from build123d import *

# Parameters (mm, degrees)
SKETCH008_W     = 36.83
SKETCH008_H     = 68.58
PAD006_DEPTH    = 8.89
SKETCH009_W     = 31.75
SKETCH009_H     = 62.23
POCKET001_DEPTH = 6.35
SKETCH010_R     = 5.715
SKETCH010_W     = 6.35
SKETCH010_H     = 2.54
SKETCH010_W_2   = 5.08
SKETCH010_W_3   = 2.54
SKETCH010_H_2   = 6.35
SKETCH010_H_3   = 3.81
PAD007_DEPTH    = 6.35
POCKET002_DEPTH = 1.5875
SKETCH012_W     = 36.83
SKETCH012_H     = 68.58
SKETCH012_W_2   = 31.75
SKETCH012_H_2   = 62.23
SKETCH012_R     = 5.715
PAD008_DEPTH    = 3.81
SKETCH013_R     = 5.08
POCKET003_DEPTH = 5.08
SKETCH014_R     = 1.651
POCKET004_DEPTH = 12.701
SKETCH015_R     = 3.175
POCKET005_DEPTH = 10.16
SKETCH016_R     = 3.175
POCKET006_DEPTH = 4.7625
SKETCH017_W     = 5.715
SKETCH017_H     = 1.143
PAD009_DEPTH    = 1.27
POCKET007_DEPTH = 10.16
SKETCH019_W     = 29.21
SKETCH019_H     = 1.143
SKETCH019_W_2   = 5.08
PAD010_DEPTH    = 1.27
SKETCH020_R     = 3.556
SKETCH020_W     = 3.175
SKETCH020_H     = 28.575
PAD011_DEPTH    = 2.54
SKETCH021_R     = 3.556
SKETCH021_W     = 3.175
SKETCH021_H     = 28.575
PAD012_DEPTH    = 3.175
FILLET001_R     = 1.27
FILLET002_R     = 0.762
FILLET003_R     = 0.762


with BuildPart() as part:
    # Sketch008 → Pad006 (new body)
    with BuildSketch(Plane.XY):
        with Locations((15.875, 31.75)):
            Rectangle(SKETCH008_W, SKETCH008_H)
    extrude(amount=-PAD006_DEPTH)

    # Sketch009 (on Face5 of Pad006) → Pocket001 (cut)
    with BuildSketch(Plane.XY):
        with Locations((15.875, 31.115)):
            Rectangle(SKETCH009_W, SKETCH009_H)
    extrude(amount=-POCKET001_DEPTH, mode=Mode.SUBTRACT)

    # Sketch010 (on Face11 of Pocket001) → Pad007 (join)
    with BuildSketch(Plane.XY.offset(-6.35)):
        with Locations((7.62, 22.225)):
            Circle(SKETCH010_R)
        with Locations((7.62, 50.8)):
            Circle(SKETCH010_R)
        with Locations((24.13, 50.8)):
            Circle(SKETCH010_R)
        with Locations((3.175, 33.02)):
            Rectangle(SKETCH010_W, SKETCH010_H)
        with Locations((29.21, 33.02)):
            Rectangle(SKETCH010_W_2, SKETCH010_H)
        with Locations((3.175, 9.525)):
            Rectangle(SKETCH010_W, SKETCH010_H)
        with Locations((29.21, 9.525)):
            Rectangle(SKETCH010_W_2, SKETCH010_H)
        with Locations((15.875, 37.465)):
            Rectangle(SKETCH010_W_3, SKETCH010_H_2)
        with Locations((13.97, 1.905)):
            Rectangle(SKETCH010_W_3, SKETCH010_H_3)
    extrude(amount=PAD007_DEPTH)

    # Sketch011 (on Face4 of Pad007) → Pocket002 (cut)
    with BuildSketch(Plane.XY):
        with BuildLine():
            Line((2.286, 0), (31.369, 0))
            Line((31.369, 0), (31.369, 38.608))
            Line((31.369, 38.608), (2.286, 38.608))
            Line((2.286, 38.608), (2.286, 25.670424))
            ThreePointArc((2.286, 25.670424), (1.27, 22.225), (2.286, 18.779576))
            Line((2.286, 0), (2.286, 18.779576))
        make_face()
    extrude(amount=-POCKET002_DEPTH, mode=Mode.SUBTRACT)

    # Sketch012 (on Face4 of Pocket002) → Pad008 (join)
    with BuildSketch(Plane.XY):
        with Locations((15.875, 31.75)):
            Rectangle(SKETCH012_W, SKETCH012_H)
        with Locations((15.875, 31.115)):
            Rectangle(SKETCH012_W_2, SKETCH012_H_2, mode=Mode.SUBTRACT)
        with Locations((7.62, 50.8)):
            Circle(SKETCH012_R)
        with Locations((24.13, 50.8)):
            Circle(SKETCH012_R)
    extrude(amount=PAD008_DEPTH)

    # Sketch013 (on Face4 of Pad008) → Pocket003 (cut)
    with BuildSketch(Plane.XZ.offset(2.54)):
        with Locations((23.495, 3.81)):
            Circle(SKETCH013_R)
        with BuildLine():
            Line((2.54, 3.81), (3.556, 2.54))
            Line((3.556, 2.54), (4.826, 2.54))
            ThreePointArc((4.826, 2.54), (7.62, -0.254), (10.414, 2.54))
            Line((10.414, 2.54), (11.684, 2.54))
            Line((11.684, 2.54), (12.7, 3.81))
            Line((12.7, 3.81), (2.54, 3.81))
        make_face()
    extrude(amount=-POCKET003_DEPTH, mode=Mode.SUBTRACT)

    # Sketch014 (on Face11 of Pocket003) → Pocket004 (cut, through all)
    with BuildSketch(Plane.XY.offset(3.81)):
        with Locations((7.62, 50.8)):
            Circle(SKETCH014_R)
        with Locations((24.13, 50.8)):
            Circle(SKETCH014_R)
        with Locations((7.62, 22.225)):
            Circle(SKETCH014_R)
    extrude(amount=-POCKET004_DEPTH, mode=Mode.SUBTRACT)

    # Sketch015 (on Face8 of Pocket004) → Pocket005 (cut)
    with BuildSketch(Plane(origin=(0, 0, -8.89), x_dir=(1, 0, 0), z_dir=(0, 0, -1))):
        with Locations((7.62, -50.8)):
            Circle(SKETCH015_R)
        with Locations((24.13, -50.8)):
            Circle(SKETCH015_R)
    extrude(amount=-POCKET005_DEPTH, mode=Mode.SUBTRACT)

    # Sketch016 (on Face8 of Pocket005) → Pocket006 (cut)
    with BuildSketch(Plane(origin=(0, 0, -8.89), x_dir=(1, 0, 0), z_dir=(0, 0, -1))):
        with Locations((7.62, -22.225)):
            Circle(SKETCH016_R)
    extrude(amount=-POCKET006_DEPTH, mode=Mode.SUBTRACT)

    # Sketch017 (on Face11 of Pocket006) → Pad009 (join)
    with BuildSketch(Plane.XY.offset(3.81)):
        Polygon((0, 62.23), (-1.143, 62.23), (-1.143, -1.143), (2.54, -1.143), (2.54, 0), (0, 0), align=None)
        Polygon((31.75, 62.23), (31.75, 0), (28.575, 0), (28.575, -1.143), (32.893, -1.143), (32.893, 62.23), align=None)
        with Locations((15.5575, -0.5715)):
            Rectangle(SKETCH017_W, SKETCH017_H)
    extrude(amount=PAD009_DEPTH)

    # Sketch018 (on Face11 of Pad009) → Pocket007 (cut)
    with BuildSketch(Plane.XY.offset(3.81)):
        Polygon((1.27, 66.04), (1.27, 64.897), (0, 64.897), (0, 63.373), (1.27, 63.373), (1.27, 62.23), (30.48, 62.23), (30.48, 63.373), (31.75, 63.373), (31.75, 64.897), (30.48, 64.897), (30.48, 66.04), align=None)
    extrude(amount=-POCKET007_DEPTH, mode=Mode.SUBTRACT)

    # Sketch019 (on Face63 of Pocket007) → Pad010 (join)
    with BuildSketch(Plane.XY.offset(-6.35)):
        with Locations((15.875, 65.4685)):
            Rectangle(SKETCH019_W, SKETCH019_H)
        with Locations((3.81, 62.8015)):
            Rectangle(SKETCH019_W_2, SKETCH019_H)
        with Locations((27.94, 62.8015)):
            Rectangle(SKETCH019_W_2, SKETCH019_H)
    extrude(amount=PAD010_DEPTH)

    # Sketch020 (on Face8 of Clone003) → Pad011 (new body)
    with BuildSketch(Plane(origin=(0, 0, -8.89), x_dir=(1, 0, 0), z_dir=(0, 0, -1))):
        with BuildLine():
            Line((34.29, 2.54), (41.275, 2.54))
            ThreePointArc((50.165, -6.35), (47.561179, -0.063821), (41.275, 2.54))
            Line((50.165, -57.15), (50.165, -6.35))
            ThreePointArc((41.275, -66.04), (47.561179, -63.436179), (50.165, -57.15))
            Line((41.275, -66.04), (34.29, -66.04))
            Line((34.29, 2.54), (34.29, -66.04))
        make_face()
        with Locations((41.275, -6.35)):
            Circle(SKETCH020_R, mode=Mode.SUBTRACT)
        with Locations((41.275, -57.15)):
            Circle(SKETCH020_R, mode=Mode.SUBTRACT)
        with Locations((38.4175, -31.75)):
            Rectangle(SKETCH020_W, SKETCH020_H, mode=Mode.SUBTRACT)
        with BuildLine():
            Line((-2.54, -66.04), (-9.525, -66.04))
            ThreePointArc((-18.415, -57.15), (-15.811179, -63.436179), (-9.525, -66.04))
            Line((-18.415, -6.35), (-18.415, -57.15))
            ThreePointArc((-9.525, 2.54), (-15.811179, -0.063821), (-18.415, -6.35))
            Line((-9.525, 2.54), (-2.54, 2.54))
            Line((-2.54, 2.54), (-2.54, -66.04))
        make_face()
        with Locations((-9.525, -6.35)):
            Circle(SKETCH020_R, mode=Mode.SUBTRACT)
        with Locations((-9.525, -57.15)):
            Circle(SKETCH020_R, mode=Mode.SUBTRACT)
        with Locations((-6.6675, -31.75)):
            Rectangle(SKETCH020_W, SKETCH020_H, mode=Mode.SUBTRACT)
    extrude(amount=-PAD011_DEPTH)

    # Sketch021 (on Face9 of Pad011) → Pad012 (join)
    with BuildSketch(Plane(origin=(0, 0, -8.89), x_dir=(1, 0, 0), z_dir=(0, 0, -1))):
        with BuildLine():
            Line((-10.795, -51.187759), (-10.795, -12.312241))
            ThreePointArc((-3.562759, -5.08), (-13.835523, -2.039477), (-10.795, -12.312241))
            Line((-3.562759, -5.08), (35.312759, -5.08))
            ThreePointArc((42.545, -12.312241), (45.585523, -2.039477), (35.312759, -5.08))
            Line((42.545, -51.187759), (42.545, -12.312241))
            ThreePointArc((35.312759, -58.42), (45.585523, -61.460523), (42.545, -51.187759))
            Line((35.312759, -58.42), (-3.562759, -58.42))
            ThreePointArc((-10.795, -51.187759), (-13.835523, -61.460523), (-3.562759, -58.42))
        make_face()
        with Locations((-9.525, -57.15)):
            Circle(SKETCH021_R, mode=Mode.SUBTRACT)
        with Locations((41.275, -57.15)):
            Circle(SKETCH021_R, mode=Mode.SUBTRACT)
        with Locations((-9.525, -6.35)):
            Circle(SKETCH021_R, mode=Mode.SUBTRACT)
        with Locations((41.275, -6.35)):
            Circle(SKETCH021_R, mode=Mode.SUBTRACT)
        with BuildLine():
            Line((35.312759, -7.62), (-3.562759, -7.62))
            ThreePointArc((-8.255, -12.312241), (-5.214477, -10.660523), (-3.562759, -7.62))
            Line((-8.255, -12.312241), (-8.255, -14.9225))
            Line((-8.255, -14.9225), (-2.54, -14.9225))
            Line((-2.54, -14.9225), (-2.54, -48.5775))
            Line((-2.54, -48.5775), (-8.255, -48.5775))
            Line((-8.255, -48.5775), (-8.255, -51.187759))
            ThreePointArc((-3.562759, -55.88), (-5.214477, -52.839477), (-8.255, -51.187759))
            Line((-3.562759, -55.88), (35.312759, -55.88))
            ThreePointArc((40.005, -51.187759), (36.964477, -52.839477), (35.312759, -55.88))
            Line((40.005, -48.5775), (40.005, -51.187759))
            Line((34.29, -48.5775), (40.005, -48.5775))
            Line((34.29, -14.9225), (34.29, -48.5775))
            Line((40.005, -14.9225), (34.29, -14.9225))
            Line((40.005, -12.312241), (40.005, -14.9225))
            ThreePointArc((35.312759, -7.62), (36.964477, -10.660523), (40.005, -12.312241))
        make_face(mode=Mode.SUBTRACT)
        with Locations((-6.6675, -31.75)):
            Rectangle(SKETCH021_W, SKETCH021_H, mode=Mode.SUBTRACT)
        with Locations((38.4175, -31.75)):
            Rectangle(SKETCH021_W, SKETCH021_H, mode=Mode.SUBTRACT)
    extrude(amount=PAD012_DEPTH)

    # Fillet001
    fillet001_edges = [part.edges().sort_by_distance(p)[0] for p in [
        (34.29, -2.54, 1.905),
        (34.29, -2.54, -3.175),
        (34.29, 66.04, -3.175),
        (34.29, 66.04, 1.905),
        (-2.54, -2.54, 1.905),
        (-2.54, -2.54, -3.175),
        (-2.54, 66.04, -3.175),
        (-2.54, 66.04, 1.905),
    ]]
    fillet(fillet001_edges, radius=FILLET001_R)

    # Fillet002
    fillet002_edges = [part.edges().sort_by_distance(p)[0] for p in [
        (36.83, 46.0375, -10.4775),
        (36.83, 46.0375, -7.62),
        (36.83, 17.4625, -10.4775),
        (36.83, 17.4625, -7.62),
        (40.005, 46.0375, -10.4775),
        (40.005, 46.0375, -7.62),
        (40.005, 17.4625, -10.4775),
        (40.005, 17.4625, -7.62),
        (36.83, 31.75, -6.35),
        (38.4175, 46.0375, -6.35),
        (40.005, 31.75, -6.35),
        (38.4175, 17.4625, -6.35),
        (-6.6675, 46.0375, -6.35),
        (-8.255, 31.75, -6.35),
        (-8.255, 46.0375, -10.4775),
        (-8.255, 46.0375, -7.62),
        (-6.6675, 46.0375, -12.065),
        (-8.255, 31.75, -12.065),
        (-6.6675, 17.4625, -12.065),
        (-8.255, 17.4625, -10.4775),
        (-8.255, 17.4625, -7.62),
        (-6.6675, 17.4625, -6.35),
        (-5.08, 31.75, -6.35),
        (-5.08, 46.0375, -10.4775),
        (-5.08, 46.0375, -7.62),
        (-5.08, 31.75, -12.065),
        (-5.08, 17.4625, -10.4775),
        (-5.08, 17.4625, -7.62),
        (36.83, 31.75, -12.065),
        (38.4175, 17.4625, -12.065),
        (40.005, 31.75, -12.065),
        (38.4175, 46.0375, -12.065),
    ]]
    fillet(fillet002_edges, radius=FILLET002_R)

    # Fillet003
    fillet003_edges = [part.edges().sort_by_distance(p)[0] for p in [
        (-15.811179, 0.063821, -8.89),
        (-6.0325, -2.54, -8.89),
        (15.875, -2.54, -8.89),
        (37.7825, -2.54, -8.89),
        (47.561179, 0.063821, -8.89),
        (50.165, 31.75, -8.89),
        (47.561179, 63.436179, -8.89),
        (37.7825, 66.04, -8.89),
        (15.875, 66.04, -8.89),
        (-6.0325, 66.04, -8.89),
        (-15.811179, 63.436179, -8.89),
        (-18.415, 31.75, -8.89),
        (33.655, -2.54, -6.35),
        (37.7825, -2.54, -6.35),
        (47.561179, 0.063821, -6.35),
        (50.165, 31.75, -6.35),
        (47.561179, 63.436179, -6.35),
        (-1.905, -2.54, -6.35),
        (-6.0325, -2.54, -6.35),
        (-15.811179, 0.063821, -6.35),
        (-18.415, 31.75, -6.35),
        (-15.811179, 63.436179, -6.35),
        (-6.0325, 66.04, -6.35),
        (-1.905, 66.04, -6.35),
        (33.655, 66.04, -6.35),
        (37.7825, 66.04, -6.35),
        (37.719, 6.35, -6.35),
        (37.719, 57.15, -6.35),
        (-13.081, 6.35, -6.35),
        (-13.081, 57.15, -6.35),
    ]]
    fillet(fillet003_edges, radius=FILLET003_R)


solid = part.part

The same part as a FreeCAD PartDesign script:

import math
import FreeCAD as App
import Part
import Sketcher
from FreeCAD import Vector
Q = App.Units.Quantity


def edges_at(feature, points):
    """Names of the edges that pass closest to the given points."""
    edges = feature.Shape.Edges
    near = lambda p: min(range(len(edges)), key=lambda i: edges[i].distToShape(Part.Vertex(*p))[0])
    return sorted({f"Edge{near(p) + 1}" for p in points})


def add_polygon(sketch, points):
    """Adds a closed chain of lines whose ends are joined by coincident constraints."""
    first, n = sketch.GeometryCount, len(points)
    for a, b in zip(points, points[1:] + points[:1]):
        sketch.addGeometry(Part.LineSegment(App.Vector(*a, 0), App.Vector(*b, 0)), False)
    for i in range(n):
        sketch.addConstraint(Sketcher.Constraint("Coincident", first + i, 2, first + (i + 1) % n, 1))

doc = App.newDocument("Part")
params = doc.addObject("Spreadsheet::Sheet", "Params")
for row, (alias, value) in enumerate([
    ("sketch1_height", "2.7 in"),
    ("sketch1_width", "1.45 in"),
    ("pad1_length", "0.35 in"),
    ("sketch2_width", "1.25 in"),
    ("sketch2_height", "2.45 in"),
    ("pocket1_length", "0.25 in"),
    ("sketch3_diameter", "0.45 in"),
    ("sketch3_width", "0.2 in"),
    ("sketch3_width2", "0.1 in"),
    ("sketch3_width3", "0.25 in"),
    ("sketch3_height", "0.15 in"),
    ("pad2_length", "0.25 in"),
    ("sketch4_radius", "0.25 in"),
    ("sketch4_height", "1.52 in"),
    ("sketch4_width", "1.145 in"),
    ("pocket2_length", "0.0625 in"),
    ("sketch5_diameter", "0.45 in"),
    ("sketch5_height", "2.7 in"),
    ("sketch5_width", "1.45 in"),
    ("sketch5_width2", "1.25 in"),
    ("sketch5_height2", "2.45 in"),
    ("pad3_length", "0.15 in"),
    ("sketch6_diameter", "0.4 in"),
    ("sketch6_radius", "0.11 in"),
    ("sketch6_width", "0.4 in"),
    ("sketch6_width2", "0.05 in"),
    ("pocket3_length", "0.2 in"),
    ("sketch7_diameter", "0.13 in"),
    ("sketch8_diameter", "0.25 in"),
    ("pocket5_length", "0.4 in"),
    ("sketch9_diameter", "0.25 in"),
    ("pocket6_length", "0.1875 in"),
    ("sketch10_width", "0.1 in"),
    ("sketch10_width2", "0.17 in"),
    ("sketch10_height", "2.45 in"),
    ("sketch10_width3", "0.045 in"),
    ("sketch10_width4", "0.225 in"),
    ("pad4_length", "0.05 in"),
    ("sketch11_width", "0.05 in"),
    ("sketch11_width2", "1.15 in"),
    ("sketch11_height", "0.06 in"),
    ("sketch11_height2", "0.045 in"),
    ("pocket7_length", "0.4 in"),
    ("sketch12_width", "0.2 in"),
    ("sketch12_width2", "1.15 in"),
    ("sketch12_height", "0.045 in"),
    ("pad5_length", "0.05 in"),
    ("sketch13_diameter", "0.28 in"),
    ("sketch13_height", "2 in"),
    ("sketch13_radius", "0.35 in"),
    ("sketch13_width", "0.275 in"),
    ("sketch13_height2", "1.125 in"),
    ("pad6_length", "0.1 in"),
    ("sketch14_diameter", "0.28 in"),
    ("sketch14_radius", "0.24 in"),
    ("sketch14_width", "0.225 in"),
    ("sketch14_height", "1.325 in"),
    ("pad7_length", "0.125 in"),
    ("fillet_radius", "0.05 in"),
    ("fillet2_radius", "0.03 in"),
    ("fillet3_radius", "0.03 in"),
], start=1):
    params.set(f"A{row}", alias)
    params.set(f"B{row}", "=" + value)
    params.setAlias(f"B{row}", alias)

body = doc.addObject("PartDesign::Body", "Body")

# Sketch on XY plane
sketch1 = body.newObject("Sketcher::SketchObject", "Sketch")
sketch1.AttachmentSupport = (doc.getObject("XY_Plane"), [""])
sketch1.MapMode = "FlatFace"
add_polygon(sketch1, [(-2.54, 66.04), (-2.54, -2.54), (34.29, -2.54), (34.29, 66.04)])  # lines 0-3
sketch1.addConstraint([
    Sketcher.Constraint("Vertical", 0),
    Sketcher.Constraint("Horizontal", 1),
    Sketcher.Constraint("Vertical", 2),
    Sketcher.Constraint("Horizontal", 3),
    Sketcher.Constraint("DistanceY", 0, 2, 0, 1, Q("2.7 in")),
    Sketcher.Constraint("DistanceX", 1, 1, 1, 2, Q("1.45 in")),
    Sketcher.Constraint("DistanceX", 0, 2, -1, 1, Q("0.1 in")),
    Sketcher.Constraint("DistanceY", 0, 2, -1, 1, Q("0.1 in")),
])
sketch1.setExpression("Constraints[8]", "Params.sketch1_height")
sketch1.setExpression("Constraints[9]", "Params.sketch1_width")
pad1 = body.newObject("PartDesign::Pad", "Pad")
pad1.Profile = sketch1
pad1.setExpression("Length", "Params.pad1_length")
pad1.Reversed = True

# Sketch on XY plane
sketch2 = body.newObject("Sketcher::SketchObject", "Sketch001")
sketch2.AttachmentSupport = (doc.getObject("XY_Plane"), [""])
sketch2.MapMode = "FlatFace"
add_polygon(sketch2, [(0, 62.23), (0, 0), (31.75, 0), (31.75, 62.23)])  # lines 0-3
sketch2.addConstraint([
    Sketcher.Constraint("Vertical", 0),
    Sketcher.Constraint("Horizontal", 1),
    Sketcher.Constraint("Vertical", 2),
    Sketcher.Constraint("Horizontal", 3),
    Sketcher.Constraint("Coincident", 0, 2, -1, 1),
    Sketcher.Constraint("DistanceX", 1, 1, 1, 2, Q("1.25 in")),
    Sketcher.Constraint("DistanceY", 0, 2, 0, 1, Q("2.45 in")),
])
sketch2.setExpression("Constraints[9]", "Params.sketch2_width")
sketch2.setExpression("Constraints[10]", "Params.sketch2_height")
pocket1 = body.newObject("PartDesign::Pocket", "Pocket")
pocket1.Profile = sketch2
pocket1.setExpression("Length", "Params.pocket1_length")

# Sketch on XY plane
sketch3 = body.newObject("Sketcher::SketchObject", "Sketch002")
sketch3.AttachmentSupport = (doc.getObject("XY_Plane"), [""])
sketch3.MapMode = "FlatFace"
sketch3.AttachmentOffset = App.Placement(Vector(0, 0, -0.25 * 25.4), App.Rotation())
sketch3.addGeometry(Part.Circle(Vector(7.62, 22.225, 0), Vector(0, 0, 1), 5.715), False)  # 0
sketch3.addGeometry(Part.Circle(Vector(7.62, 50.8, 0), Vector(0, 0, 1), 5.715), False)  # 1
sketch3.addGeometry(Part.Circle(Vector(24.13, 50.8, 0), Vector(0, 0, 1), 5.715), False)  # 2
add_polygon(sketch3, [(0, 34.29), (0, 31.75), (6.35, 31.75), (6.35, 34.29)])  # lines 3-6
add_polygon(sketch3, [(26.67, 34.29), (26.67, 31.75), (31.75, 31.75), (31.75, 34.29)])  # lines 7-10
add_polygon(sketch3, [(0, 10.795), (0, 8.255), (6.35, 8.255), (6.35, 10.795)])  # lines 11-14
add_polygon(sketch3, [(26.67, 10.795), (26.67, 8.255), (31.75, 8.255), (31.75, 10.795)])  # lines 15-18
add_polygon(sketch3, [(14.605, 40.64), (14.605, 34.29), (17.145, 34.29), (17.145, 40.64)])  # lines 19-22
add_polygon(sketch3, [(12.7, 3.81), (12.7, 0), (15.24, 0), (15.24, 3.81)])  # lines 23-26
sketch3.addConstraint([
    Sketcher.Constraint("Vertical", 3),
    Sketcher.Constraint("Horizontal", 4),
    Sketcher.Constraint("Vertical", 5),
    Sketcher.Constraint("Horizontal", 6),
    Sketcher.Constraint("Vertical", 7),
    Sketcher.Constraint("Horizontal", 8),
    Sketcher.Constraint("Vertical", 9),
    Sketcher.Constraint("Horizontal", 10),
    Sketcher.Constraint("Vertical", 11),
    Sketcher.Constraint("Horizontal", 12),
    Sketcher.Constraint("Vertical", 13),
    Sketcher.Constraint("Horizontal", 14),
    Sketcher.Constraint("Vertical", 15),
    Sketcher.Constraint("Horizontal", 16),
    Sketcher.Constraint("Vertical", 17),
    Sketcher.Constraint("Horizontal", 18),
    Sketcher.Constraint("Vertical", 19),
    Sketcher.Constraint("Horizontal", 20),
    Sketcher.Constraint("Vertical", 21),
    Sketcher.Constraint("Horizontal", 22),
    Sketcher.Constraint("Vertical", 23),
    Sketcher.Constraint("Horizontal", 24),
    Sketcher.Constraint("Vertical", 25),
    Sketcher.Constraint("Horizontal", 26),
    Sketcher.Constraint("Equal", 0, 1),
    Sketcher.Constraint("Equal", 1, 2),
    Sketcher.Constraint("PointOnObject", 3, 2, -2),
    Sketcher.Constraint("PointOnObject", 11, 2, -2),
    Sketcher.Constraint("PointOnObject", 23, 2, -1),
    Sketcher.Constraint("Horizontal", 1, 3, 2, 3),
    Sketcher.Constraint("Horizontal", 4, 2, 7, 2),
    Sketcher.Constraint("Horizontal", 6, 2, 9, 2),
    Sketcher.Constraint("Horizontal", 12, 2, 15, 2),
    Sketcher.Constraint("Horizontal", 14, 2, 17, 2),
    Sketcher.Constraint("Horizontal", 10, 2, 19, 2),
    Sketcher.Constraint("Vertical", 0, 3, 1, 3),
    Sketcher.Constraint("Vertical", 5, 2, 12, 2),
    Sketcher.Constraint("Vertical", 10, 2, 15, 2),
    Sketcher.Constraint("Vertical", 9, 2, 16, 2),
    Sketcher.Constraint("Equal", 22, 24),
    Sketcher.Constraint("Equal", 26, 3),
    Sketcher.Constraint("Equal", 9, 11),
    Sketcher.Constraint("Equal", 14, 19),
    Sketcher.Constraint("Diameter", 0, Q("0.45 in")),
    Sketcher.Constraint("DistanceX", 8, 1, 8, 2, Q("0.2 in")),
    Sketcher.Constraint("DistanceX", 20, 1, 20, 2, Q("0.1 in")),
    Sketcher.Constraint("DistanceY", -1, 1, 1, 3, Q("2 in")),
    Sketcher.Constraint("DistanceX", 4, 2, 8, 2, Q("1 in")),
    Sketcher.Constraint("DistanceX", 4, 1, 4, 2, Q("0.25 in")),
    Sketcher.Constraint("DistanceY", 23, 2, 23, 1, Q("0.15 in")),
    Sketcher.Constraint("DistanceX", -1, 1, 0, 3, Q("0.3 in")),
    Sketcher.Constraint("DistanceY", -1, 1, 21, 2, Q("1.6 in")),
    Sketcher.Constraint("DistanceX", -1, 1, 23, 2, Q("0.5 in")),
    Sketcher.Constraint("DistanceX", 4, 2, 2, 3, Q("0.7 in")),
    Sketcher.Constraint("DistanceY", 11, 2, 0, 3, Q("0.55 in")),
    Sketcher.Constraint("DistanceY", -1, 1, 0, 3, Q("0.875 in")),
    Sketcher.Constraint("DistanceX", -1, 1, 19, 2, Q("0.575 in")),
])
sketch3.setExpression("Constraints[67]", "Params.sketch3_diameter")
sketch3.setExpression("Constraints[68]", "Params.sketch3_width")
sketch3.setExpression("Constraints[69]", "Params.sketch3_width2")
sketch3.setExpression("Constraints[72]", "Params.sketch3_width3")
sketch3.setExpression("Constraints[73]", "Params.sketch3_height")
pad2 = body.newObject("PartDesign::Pad", "Pad001")
pad2.Profile = sketch3
pad2.setExpression("Length", "Params.pad2_length")

# Sketch on XY plane
sketch4 = body.newObject("Sketcher::SketchObject", "Sketch003")
sketch4.AttachmentSupport = (doc.getObject("XY_Plane"), [""])
sketch4.MapMode = "FlatFace"
sketch4.addGeometry([
    Part.LineSegment(Vector(2.286, 0, 0), Vector(31.369, 0, 0)),  # 0
    Part.LineSegment(Vector(31.369, 0, 0), Vector(31.369, 38.608, 0)),  # 1
    Part.LineSegment(Vector(31.369, 38.608, 0), Vector(2.286, 38.608, 0)),  # 2
    Part.LineSegment(Vector(2.286, 38.608, 0), Vector(2.286, 25.670424, 0)),  # 3
    Part.ArcOfCircle(Part.Circle(Vector(7.620001, 22.225, 0), Vector(0, 0, 1), 6.350001), math.radians(147.140123), math.radians(212.859877)),  # 4
    Part.LineSegment(Vector(2.286, 18.779576, 0), Vector(2.286, 0, 0)),  # 5
], False)
sketch4.addConstraint([
    Sketcher.Constraint("Coincident", 0, 2, 1, 1),
    Sketcher.Constraint("Coincident", 1, 2, 2, 1),
    Sketcher.Constraint("Coincident", 2, 2, 3, 1),
    Sketcher.Constraint("Coincident", 3, 2, 4, 1),
    Sketcher.Constraint("Coincident", 4, 2, 5, 1),
    Sketcher.Constraint("Coincident", 5, 2, 0, 1),
    Sketcher.Constraint("Horizontal", 0),
    Sketcher.Constraint("Vertical", 1),
    Sketcher.Constraint("Horizontal", 2),
    Sketcher.Constraint("Vertical", 3),
    Sketcher.Constraint("Vertical", 5),
    Sketcher.Constraint("PointOnObject", 0, 2, -1),
    Sketcher.Constraint("Vertical", 3, 2, 4, 2),
    Sketcher.Constraint("Radius", 4, Q("0.25 in")),
    Sketcher.Constraint("DistanceY", 1, 1, 1, 2, Q("1.52 in")),
    Sketcher.Constraint("DistanceX", -1, 1, 4, 3, Q("0.3 in")),
    Sketcher.Constraint("DistanceX", 0, 1, 0, 2, Q("1.145 in")),
    Sketcher.Constraint("DistanceX", -1, 1, 2, 2, Q("0.09 in")),
    Sketcher.Constraint("DistanceY", -1, 1, 4, 3, Q("0.875 in")),
])
sketch4.setExpression("Constraints[13]", "Params.sketch4_radius")
sketch4.setExpression("Constraints[14]", "Params.sketch4_height")
sketch4.setExpression("Constraints[16]", "Params.sketch4_width")
pocket2 = body.newObject("PartDesign::Pocket", "Pocket001")
pocket2.Profile = sketch4
pocket2.setExpression("Length", "Params.pocket2_length")

# Sketch on XY plane
sketch5 = body.newObject("Sketcher::SketchObject", "Sketch004")
sketch5.AttachmentSupport = (doc.getObject("XY_Plane"), [""])
sketch5.MapMode = "FlatFace"
add_polygon(sketch5, [(-2.54, 66.04), (-2.54, -2.54), (34.29, -2.54), (34.29, 66.04)])  # lines 0-3
add_polygon(sketch5, [(31.75, 0), (0, 0), (0, 62.23), (31.75, 62.23)])  # lines 4-7
sketch5.addGeometry(Part.Circle(Vector(7.62, 50.8, 0), Vector(0, 0, 1), 5.715), False)  # 8
sketch5.addGeometry(Part.Circle(Vector(24.13, 50.8, 0), Vector(0, 0, 1), 5.715), False)  # 9
sketch5.addConstraint([
    Sketcher.Constraint("Vertical", 0),
    Sketcher.Constraint("Horizontal", 1),
    Sketcher.Constraint("Vertical", 2),
    Sketcher.Constraint("Horizontal", 3),
    Sketcher.Constraint("Horizontal", 4),
    Sketcher.Constraint("Vertical", 5),
    Sketcher.Constraint("Horizontal", 6),
    Sketcher.Constraint("Vertical", 7),
    Sketcher.Constraint("Coincident", 4, 2, -1, 1),
    Sketcher.Constraint("Equal", 8, 9),
    Sketcher.Constraint("Horizontal", 8, 3, 9, 3),
    Sketcher.Constraint("Diameter", 8, Q("0.45 in")),
    Sketcher.Constraint("DistanceY", 0, 2, 0, 1, Q("2.7 in")),
    Sketcher.Constraint("DistanceY", -1, 1, 8, 3, Q("2 in")),
    Sketcher.Constraint("DistanceX", 1, 1, 1, 2, Q("1.45 in")),
    Sketcher.Constraint("DistanceX", 4, 2, 4, 1, Q("1.25 in")),
    Sketcher.Constraint("DistanceY", 5, 1, 5, 2, Q("2.45 in")),
    Sketcher.Constraint("DistanceX", -1, 1, 8, 3, Q("0.3 in")),
    Sketcher.Constraint("DistanceX", 0, 2, -1, 1, Q("0.1 in")),
    Sketcher.Constraint("DistanceY", 0, 2, -1, 1, Q("0.1 in")),
    Sketcher.Constraint("DistanceX", 9, 3, 1, 2, Q("0.4 in")),
])
sketch5.setExpression("Constraints[19]", "Params.sketch5_diameter")
sketch5.setExpression("Constraints[20]", "Params.sketch5_height")
sketch5.setExpression("Constraints[22]", "Params.sketch5_width")
sketch5.setExpression("Constraints[23]", "Params.sketch5_width2")
sketch5.setExpression("Constraints[24]", "Params.sketch5_height2")
pad3 = body.newObject("PartDesign::Pad", "Pad002")
pad3.Profile = sketch5
pad3.setExpression("Length", "Params.pad3_length")

# Sketch on XZ plane
sketch6 = body.newObject("Sketcher::SketchObject", "Sketch005")
sketch6.AttachmentSupport = (doc.getObject("XZ_Plane"), [""])
sketch6.MapMode = "FlatFace"
sketch6.AttachmentOffset = App.Placement(Vector(0, 0, 0.1 * 25.4), App.Rotation())
sketch6.addGeometry([
    Part.Circle(Vector(23.495, 3.81, 0), Vector(0, 0, 1), 5.08),  # 0
    Part.LineSegment(Vector(2.54, 3.81, 0), Vector(3.556, 2.54, 0)),  # 1
    Part.LineSegment(Vector(3.556, 2.54, 0), Vector(4.826, 2.54, 0)),  # 2
    Part.ArcOfCircle(Part.Circle(Vector(7.62, 2.54, 0), Vector(0, 0, 1), 2.794), math.radians(180), math.radians(360)),  # 3
    Part.LineSegment(Vector(10.414, 2.54, 0), Vector(11.684, 2.54, 0)),  # 4
    Part.LineSegment(Vector(11.684, 2.54, 0), Vector(12.7, 3.81, 0)),  # 5
    Part.LineSegment(Vector(12.7, 3.81, 0), Vector(2.54, 3.81, 0)),  # 6
], False)
sketch6.addConstraint([
    Sketcher.Constraint("Coincident", 1, 2, 2, 1),
    Sketcher.Constraint("Coincident", 2, 2, 3, 1),
    Sketcher.Constraint("Coincident", 3, 2, 4, 1),
    Sketcher.Constraint("Coincident", 4, 2, 5, 1),
    Sketcher.Constraint("Coincident", 5, 2, 6, 1),
    Sketcher.Constraint("Coincident", 6, 2, 1, 1),
    Sketcher.Constraint("Horizontal", 2),
    Sketcher.Constraint("Horizontal", 4),
    Sketcher.Constraint("Horizontal", 6),
    Sketcher.Constraint("Horizontal", 3, 3, 1, 2),
    Sketcher.Constraint("Horizontal", 2, 2, 3, 2),
    Sketcher.Constraint("Horizontal", 0, 3, 5, 2),
    Sketcher.Constraint("Equal", 2, 4),
    Sketcher.Constraint("Equal", 1, 5),
    Sketcher.Constraint("Diameter", 0, Q("0.4 in")),
    Sketcher.Constraint("Radius", 3, Q("0.11 in")),
    Sketcher.Constraint("DistanceX", 6, 2, 6, 1, Q("0.4 in")),
    Sketcher.Constraint("DistanceX", 2, 1, 2, 2, Q("0.05 in")),
    Sketcher.Constraint("DistanceX", -1, 1, 3, 3, Q("0.3 in")),
    Sketcher.Constraint("DistanceY", -1, 1, 3, 3, Q("0.1 in")),
    Sketcher.Constraint("DistanceY", -1, 1, 0, 3, Q("0.15 in")),
    Sketcher.Constraint("DistanceX", -1, 1, 0, 3, Q("0.925 in")),
])
sketch6.setExpression("Constraints[14]", "Params.sketch6_diameter")
sketch6.setExpression("Constraints[15]", "Params.sketch6_radius")
sketch6.setExpression("Constraints[16]", "Params.sketch6_width")
sketch6.setExpression("Constraints[17]", "Params.sketch6_width2")
pocket3 = body.newObject("PartDesign::Pocket", "Pocket002")
pocket3.Profile = sketch6
pocket3.setExpression("Length", "Params.pocket3_length")

# Sketch on XY plane
sketch7 = body.newObject("Sketcher::SketchObject", "Sketch006")
sketch7.AttachmentSupport = (doc.getObject("XY_Plane"), [""])
sketch7.MapMode = "FlatFace"
sketch7.AttachmentOffset = App.Placement(Vector(0, 0, 0.15 * 25.4), App.Rotation())
sketch7.addGeometry([
    Part.Circle(Vector(7.62, 50.8, 0), Vector(0, 0, 1), 1.651),
    Part.Circle(Vector(24.13, 50.8, 0), Vector(0, 0, 1), 1.651),
    Part.Circle(Vector(7.62, 22.225, 0), Vector(0, 0, 1), 1.651),
], False)
sketch7.addConstraint([
    Sketcher.Constraint("Equal", 0, 1),
    Sketcher.Constraint("Equal", 1, 2),
    Sketcher.Constraint("Horizontal", 0, 3, 1, 3),
    Sketcher.Constraint("Vertical", 0, 3, 2, 3),
    Sketcher.Constraint("Diameter", 0, Q("0.13 in")),
    Sketcher.Constraint("DistanceY", -1, 1, 0, 3, Q("2 in")),
    Sketcher.Constraint("DistanceX", -1, 1, 0, 3, Q("0.3 in")),
    Sketcher.Constraint("DistanceX", -1, 1, 1, 3, Q("0.95 in")),
    Sketcher.Constraint("DistanceY", -1, 1, 2, 3, Q("0.875 in")),
])
sketch7.setExpression("Constraints[4]", "Params.sketch7_diameter")
pocket4 = body.newObject("PartDesign::Pocket", "Pocket003")
pocket4.Profile = sketch7
pocket4.Type = "ThroughAll"

# Sketch on XY plane
sketch8 = body.newObject("Sketcher::SketchObject", "Sketch007")
sketch8.AttachmentSupport = (doc.getObject("XY_Plane"), [""])
sketch8.MapMode = "FlatFace"
sketch8.AttachmentOffset = App.Placement(Vector(0, 0, -0.35 * 25.4), App.Rotation())
sketch8.addGeometry([
    Part.Circle(Vector(7.62, 50.8, 0), Vector(0, 0, 1), 3.175),
    Part.Circle(Vector(24.13, 50.8, 0), Vector(0, 0, 1), 3.175),
], False)
sketch8.addConstraint([
    Sketcher.Constraint("Equal", 0, 1),
    Sketcher.Constraint("Horizontal", 0, 3, 1, 3),
    Sketcher.Constraint("Diameter", 0, Q("0.25 in")),
    Sketcher.Constraint("DistanceY", -1, 1, 0, 3, Q("2 in")),
    Sketcher.Constraint("DistanceX", -1, 1, 0, 3, Q("0.3 in")),
    Sketcher.Constraint("DistanceX", -1, 1, 1, 3, Q("0.95 in")),
])
sketch8.setExpression("Constraints[2]", "Params.sketch8_diameter")
pocket5 = body.newObject("PartDesign::Pocket", "Pocket004")
pocket5.Profile = sketch8
pocket5.setExpression("Length", "Params.pocket5_length")
pocket5.Reversed = True

# Sketch on XY plane
sketch9 = body.newObject("Sketcher::SketchObject", "Sketch008")
sketch9.AttachmentSupport = (doc.getObject("XY_Plane"), [""])
sketch9.MapMode = "FlatFace"
sketch9.AttachmentOffset = App.Placement(Vector(0, 0, -0.35 * 25.4), App.Rotation())
sketch9.addGeometry(Part.Circle(Vector(7.62, 22.225, 0), Vector(0, 0, 1), 3.175), False)
sketch9.addConstraint([
    Sketcher.Constraint("Diameter", 0, Q("0.25 in")),
    Sketcher.Constraint("DistanceX", -1, 1, 0, 3, Q("0.3 in")),
    Sketcher.Constraint("DistanceY", -1, 1, 0, 3, Q("0.875 in")),
])
sketch9.setExpression("Constraints[0]", "Params.sketch9_diameter")
pocket6 = body.newObject("PartDesign::Pocket", "Pocket005")
pocket6.Profile = sketch9
pocket6.setExpression("Length", "Params.pocket6_length")
pocket6.Reversed = True

# Sketch on XY plane
sketch10 = body.newObject("Sketcher::SketchObject", "Sketch009")
sketch10.AttachmentSupport = (doc.getObject("XY_Plane"), [""])
sketch10.MapMode = "FlatFace"
sketch10.AttachmentOffset = App.Placement(Vector(0, 0, 0.15 * 25.4), App.Rotation())
add_polygon(sketch10, [(0, 62.23), (-1.143, 62.23), (-1.143, -1.143), (2.54, -1.143), (2.54, 0), (0, 0)])  # lines 0-5
add_polygon(sketch10, [(31.75, 62.23), (31.75, 0), (28.575, 0), (28.575, -1.143), (32.893, -1.143), (32.893, 62.23)])  # lines 6-11
add_polygon(sketch10, [(12.7, 0), (12.7, -1.143), (18.415, -1.143), (18.415, 0)])  # lines 12-15
sketch10.addConstraint([
    Sketcher.Constraint("Horizontal", 0),
    Sketcher.Constraint("Vertical", 1),
    Sketcher.Constraint("Horizontal", 2),
    Sketcher.Constraint("Vertical", 3),
    Sketcher.Constraint("Horizontal", 4),
    Sketcher.Constraint("Vertical", 5),
    Sketcher.Constraint("Vertical", 6),
    Sketcher.Constraint("Horizontal", 7),
    Sketcher.Constraint("Vertical", 8),
    Sketcher.Constraint("Horizontal", 9),
    Sketcher.Constraint("Vertical", 10),
    Sketcher.Constraint("Horizontal", 11),
    Sketcher.Constraint("Vertical", 12),
    Sketcher.Constraint("Horizontal", 13),
    Sketcher.Constraint("Vertical", 14),
    Sketcher.Constraint("Horizontal", 15),
    Sketcher.Constraint("Coincident", 4, 2, -1, 1),
    Sketcher.Constraint("PointOnObject", 6, 2, -1),
    Sketcher.Constraint("PointOnObject", 14, 2, -1),
    Sketcher.Constraint("Horizontal", 2, 2, 8, 2),
    Sketcher.Constraint("Horizontal", 5, 2, 10, 2),
    Sketcher.Constraint("Horizontal", 9, 2, 12, 2),
    Sketcher.Constraint("Equal", 0, 11),
    Sketcher.Constraint("Equal", 11, 3),
    Sketcher.Constraint("DistanceX", 4, 2, 4, 1, Q("0.1 in")),
    Sketcher.Constraint("DistanceX", 9, 1, 9, 2, Q("0.17 in")),
    Sketcher.Constraint("DistanceY", 5, 1, 5, 2, Q("2.45 in")),
    Sketcher.Constraint("DistanceX", -1, 1, 12, 2, Q("0.5 in")),
    Sketcher.Constraint("DistanceX", 13, 2, 8, 2, Q("0.4 in")),
    Sketcher.Constraint("DistanceX", 0, 2, 0, 1, Q("0.045 in")),
    Sketcher.Constraint("DistanceX", 13, 1, 13, 2, Q("0.225 in")),
])
sketch10.setExpression("Constraints[40]", "Params.sketch10_width")
sketch10.setExpression("Constraints[41]", "Params.sketch10_width2")
sketch10.setExpression("Constraints[42]", "Params.sketch10_height")
sketch10.setExpression("Constraints[45]", "Params.sketch10_width3")
sketch10.setExpression("Constraints[46]", "Params.sketch10_width4")
pad4 = body.newObject("PartDesign::Pad", "Pad003")
pad4.Profile = sketch10
pad4.setExpression("Length", "Params.pad4_length")

# Sketch on XY plane
sketch11 = body.newObject("Sketcher::SketchObject", "Sketch010")
sketch11.AttachmentSupport = (doc.getObject("XY_Plane"), [""])
sketch11.MapMode = "FlatFace"
sketch11.AttachmentOffset = App.Placement(Vector(0, 0, 0.15 * 25.4), App.Rotation())
add_polygon(sketch11, [(1.27, 66.04), (1.27, 64.897), (0, 64.897), (0, 63.373), (1.27, 63.373), (1.27, 62.23), (30.48, 62.23), (30.48, 63.373), (31.75, 63.373), (31.75, 64.897), (30.48, 64.897), (30.48, 66.04)])  # lines 0-11
sketch11.addConstraint([
    Sketcher.Constraint("Vertical", 0),
    Sketcher.Constraint("Horizontal", 1),
    Sketcher.Constraint("Vertical", 2),
    Sketcher.Constraint("Horizontal", 3),
    Sketcher.Constraint("Vertical", 4),
    Sketcher.Constraint("Horizontal", 5),
    Sketcher.Constraint("Vertical", 6),
    Sketcher.Constraint("Horizontal", 7),
    Sketcher.Constraint("Vertical", 8),
    Sketcher.Constraint("Horizontal", 9),
    Sketcher.Constraint("Vertical", 10),
    Sketcher.Constraint("Horizontal", 11),
    Sketcher.Constraint("PointOnObject", 1, 2, -2),
    Sketcher.Constraint("Horizontal", 3, 2, 6, 2),
    Sketcher.Constraint("Horizontal", 1, 2, 8, 2),
    Sketcher.Constraint("Vertical", 0, 2, 3, 2),
    Sketcher.Constraint("Vertical", 6, 2, 9, 2),
    Sketcher.Constraint("Equal", 3, 7),
    Sketcher.Constraint("Equal", 0, 4),
    Sketcher.Constraint("DistanceX", 1, 2, 1, 1, Q("0.05 in")),
    Sketcher.Constraint("DistanceX", 5, 1, 5, 2, Q("1.15 in")),
    Sketcher.Constraint("DistanceY", 2, 2, 2, 1, Q("0.06 in")),
    Sketcher.Constraint("DistanceY", -1, 1, 10, 2, Q("2.6 in")),
    Sketcher.Constraint("DistanceY", 0, 2, 0, 1, Q("0.045 in")),
])
sketch11.setExpression("Constraints[31]", "Params.sketch11_width")
sketch11.setExpression("Constraints[32]", "Params.sketch11_width2")
sketch11.setExpression("Constraints[33]", "Params.sketch11_height")
sketch11.setExpression("Constraints[35]", "Params.sketch11_height2")
pocket7 = body.newObject("PartDesign::Pocket", "Pocket006")
pocket7.Profile = sketch11
pocket7.setExpression("Length", "Params.pocket7_length")

# Sketch on XY plane
sketch12 = body.newObject("Sketcher::SketchObject", "Sketch011")
sketch12.AttachmentSupport = (doc.getObject("XY_Plane"), [""])
sketch12.MapMode = "FlatFace"
sketch12.AttachmentOffset = App.Placement(Vector(0, 0, -0.25 * 25.4), App.Rotation())
add_polygon(sketch12, [(1.27, 66.04), (1.27, 64.897), (30.48, 64.897), (30.48, 66.04)])  # lines 0-3
add_polygon(sketch12, [(1.27, 63.373), (1.27, 62.23), (6.35, 62.23), (6.35, 63.373)])  # lines 4-7
add_polygon(sketch12, [(25.4, 63.373), (25.4, 62.23), (30.48, 62.23), (30.48, 63.373)])  # lines 8-11
sketch12.addConstraint([
    Sketcher.Constraint("Vertical", 0),
    Sketcher.Constraint("Horizontal", 1),
    Sketcher.Constraint("Vertical", 2),
    Sketcher.Constraint("Horizontal", 3),
    Sketcher.Constraint("Vertical", 4),
    Sketcher.Constraint("Horizontal", 5),
    Sketcher.Constraint("Vertical", 6),
    Sketcher.Constraint("Horizontal", 7),
    Sketcher.Constraint("Vertical", 8),
    Sketcher.Constraint("Horizontal", 9),
    Sketcher.Constraint("Vertical", 10),
    Sketcher.Constraint("Horizontal", 11),
    Sketcher.Constraint("Horizontal", 5, 2, 8, 2),
    Sketcher.Constraint("Horizontal", 7, 2, 10, 2),
    Sketcher.Constraint("Vertical", 3, 2, 4, 2),
    Sketcher.Constraint("Vertical", 2, 2, 9, 2),
    Sketcher.Constraint("Equal", 7, 9),
    Sketcher.Constraint("Equal", 2, 4),
    Sketcher.Constraint("DistanceX", 5, 1, 5, 2, Q("0.2 in")),
    Sketcher.Constraint("DistanceX", -1, 1, 8, 2, Q("1 in")),
    Sketcher.Constraint("DistanceX", 1, 1, 1, 2, Q("1.15 in")),
    Sketcher.Constraint("DistanceY", -1, 1, 2, 2, Q("2.6 in")),
    Sketcher.Constraint("DistanceY", 0, 2, 0, 1, Q("0.045 in")),
    Sketcher.Constraint("DistanceY", -1, 1, 4, 2, Q("2.45 in")),
])
sketch12.setExpression("Constraints[30]", "Params.sketch12_width")
sketch12.setExpression("Constraints[32]", "Params.sketch12_width2")
sketch12.setExpression("Constraints[34]", "Params.sketch12_height")
pad5 = body.newObject("PartDesign::Pad", "Pad004")
pad5.Profile = sketch12
pad5.setExpression("Length", "Params.pad5_length")

# Sketch on XY plane
sketch13 = body.newObject("Sketcher::SketchObject", "Sketch012")
sketch13.AttachmentSupport = (doc.getObject("XY_Plane"), [""])
sketch13.MapMode = "FlatFace"
sketch13.AttachmentOffset = App.Placement(Vector(0, 0, -0.35 * 25.4), App.Rotation())
sketch13.addGeometry(Part.LineSegment(Vector(41.275, -2.54, 0), Vector(34.29, -2.54, 0)), False)  # 0
sketch13.addGeometry(Part.LineSegment(Vector(34.29, -2.54, 0), Vector(34.29, 66.04, 0)), False)  # 1
sketch13.addGeometry(Part.LineSegment(Vector(34.29, 66.04, 0), Vector(41.275, 66.04, 0)), False)  # 2
sketch13.addGeometry(Part.ArcOfCircle(Part.Circle(Vector(41.274999, 57.149999, 0), Vector(0, 0, 1), 8.890001), math.radians(0.000006), math.radians(89.999994)), False)  # 3
sketch13.addGeometry(Part.LineSegment(Vector(50.165, 57.15, 0), Vector(50.165, 6.35, 0)), False)  # 4
sketch13.addGeometry(Part.ArcOfCircle(Part.Circle(Vector(41.274999, 6.350001, 0), Vector(0, 0, 1), 8.890001), math.radians(-89.999994), math.radians(-0.000006)), False)  # 5
sketch13.addGeometry(Part.Circle(Vector(41.275, 57.15, 0), Vector(0, 0, 1), 3.556), False)  # 6
sketch13.addGeometry(Part.Circle(Vector(41.275, 6.35, 0), Vector(0, 0, 1), 3.556), False)  # 7
add_polygon(sketch13, [(36.83, 46.0375), (36.83, 17.4625), (40.005, 17.4625), (40.005, 46.0375)])  # lines 8-11
sketch13.addGeometry(Part.LineSegment(Vector(-9.525, 66.04, 0), Vector(-2.54, 66.04, 0)), False)  # 12
sketch13.addGeometry(Part.LineSegment(Vector(-2.54, 66.04, 0), Vector(-2.54, -2.54, 0)), False)  # 13
sketch13.addGeometry(Part.LineSegment(Vector(-2.54, -2.54, 0), Vector(-9.525, -2.54, 0)), False)  # 14
sketch13.addGeometry(Part.ArcOfCircle(Part.Circle(Vector(-9.524999, 6.350001, 0), Vector(0, 0, 1), 8.890001), math.radians(-179.999994), math.radians(-90.000006)), False)  # 15
sketch13.addGeometry(Part.LineSegment(Vector(-18.415, 6.35, 0), Vector(-18.415, 57.15, 0)), False)  # 16
sketch13.addGeometry(Part.ArcOfCircle(Part.Circle(Vector(-9.524999, 57.149999, 0), Vector(0, 0, 1), 8.890001), math.radians(90.000006), math.radians(179.999994)), False)  # 17
add_polygon(sketch13, [(-8.255, 46.0375), (-8.255, 17.4625), (-5.08, 17.4625), (-5.08, 46.0375)])  # lines 18-21
sketch13.addGeometry(Part.Circle(Vector(-9.525, 57.15, 0), Vector(0, 0, 1), 3.556), False)  # 22
sketch13.addGeometry(Part.Circle(Vector(-9.525, 6.35, 0), Vector(0, 0, 1), 3.556), False)  # 23
sketch13.addConstraint([
    Sketcher.Constraint("Coincident", 0, 2, 1, 1),
    Sketcher.Constraint("Coincident", 1, 2, 2, 1),
    Sketcher.Constraint("Tangent", 2, 2, 3, 2),
    Sketcher.Constraint("Tangent", 3, 1, 4, 1),
    Sketcher.Constraint("Tangent", 4, 2, 5, 2),
    Sketcher.Constraint("Tangent", 5, 1, 0, 1),
    Sketcher.Constraint("Coincident", 12, 2, 13, 1),
    Sketcher.Constraint("Coincident", 13, 2, 14, 1),
    Sketcher.Constraint("Tangent", 14, 2, 15, 2),
    Sketcher.Constraint("Tangent", 15, 1, 16, 1),
    Sketcher.Constraint("Tangent", 16, 2, 17, 2),
    Sketcher.Constraint("Tangent", 17, 1, 12, 1),
    Sketcher.Constraint("Horizontal", 0),
    Sketcher.Constraint("Vertical", 1),
    Sketcher.Constraint("Horizontal", 2),
    Sketcher.Constraint("Vertical", 4),
    Sketcher.Constraint("Vertical", 8),
    Sketcher.Constraint("Horizontal", 9),
    Sketcher.Constraint("Vertical", 10),
    Sketcher.Constraint("Horizontal", 11),
    Sketcher.Constraint("Horizontal", 12),
    Sketcher.Constraint("Vertical", 13),
    Sketcher.Constraint("Horizontal", 14),
    Sketcher.Constraint("Vertical", 16),
    Sketcher.Constraint("Vertical", 18),
    Sketcher.Constraint("Horizontal", 19),
    Sketcher.Constraint("Vertical", 20),
    Sketcher.Constraint("Horizontal", 21),
    Sketcher.Constraint("Coincident", 6, 3, 3, 3),
    Sketcher.Constraint("Coincident", 7, 3, 5, 3),
    Sketcher.Constraint("Coincident", 22, 3, 17, 3),
    Sketcher.Constraint("Coincident", 23, 3, 15, 3),
    Sketcher.Constraint("Equal", 3, 5),
    Sketcher.Constraint("Equal", 6, 7),
    Sketcher.Constraint("Equal", 5, 15),
    Sketcher.Constraint("Equal", 15, 17),
    Sketcher.Constraint("Equal", 7, 22),
    Sketcher.Constraint("Equal", 22, 23),
    Sketcher.Constraint("Horizontal", 7, 3, 15, 3),
    Sketcher.Constraint("Horizontal", 6, 3, 17, 3),
    Sketcher.Constraint("Horizontal", 9, 2, 18, 2),
    Sketcher.Constraint("Horizontal", 11, 2, 20, 2),
    Sketcher.Constraint("Equal", 2, 12),
    Sketcher.Constraint("Equal", 11, 19),
    Sketcher.Constraint("Diameter", 6, Q("0.28 in")),
    Sketcher.Constraint("DistanceY", 4, 2, 4, 1, Q("2 in")),
    Sketcher.Constraint("Radius", 3, Q("0.35 in")),
    Sketcher.Constraint("DistanceX", 15, 3, 5, 3, Q("1.9999999 in")),
    Sketcher.Constraint("DistanceY", 0, 2, -1, 1, Q("0.1 in")),
    Sketcher.Constraint("DistanceX", 12, 2, -1, 1, Q("0.1 in")),
    Sketcher.Constraint("DistanceX", 19, 2, -1, 1, Q("0.2 in")),
    Sketcher.Constraint("DistanceX", 0, 2, 8, 2, Q("0.1 in")),
    Sketcher.Constraint("DistanceX", 9, 2, 4, 2, Q("0.4 in")),
    Sketcher.Constraint("DistanceX", 0, 2, 0, 1, Q("0.275 in")),
    Sketcher.Constraint("DistanceY", 8, 2, 8, 1, Q("1.125 in")),
    Sketcher.Constraint("DistanceY", -1, 1, 8, 2, Q("0.6875 in")),
])
sketch13.setExpression("Constraints[52]", "Params.sketch13_diameter")
sketch13.setExpression("Constraints[53]", "Params.sketch13_height")
sketch13.setExpression("Constraints[54]", "Params.sketch13_radius")
sketch13.setExpression("Constraints[61]", "Params.sketch13_width")
sketch13.setExpression("Constraints[62]", "Params.sketch13_height2")
pad6 = body.newObject("PartDesign::Pad", "Pad005")
pad6.Profile = sketch13
pad6.setExpression("Length", "Params.pad6_length")

# Sketch on XY plane
sketch14 = body.newObject("Sketcher::SketchObject", "Sketch013")
sketch14.AttachmentSupport = (doc.getObject("XY_Plane"), [""])
sketch14.MapMode = "FlatFace"
sketch14.AttachmentOffset = App.Placement(Vector(0, 0, -0.35 * 25.4), App.Rotation())
sketch14.addGeometry(Part.LineSegment(Vector(-10.795, 12.312241, 0), Vector(-10.795, 51.187759, 0)), False)  # 0
sketch14.addGeometry(Part.ArcOfCircle(Part.Circle(Vector(-9.525, 57.15, 0), Vector(0, 0, 1), 6.096), math.radians(12.024699), math.radians(257.975301)), False)  # 1
sketch14.addGeometry(Part.LineSegment(Vector(-3.562759, 58.42, 0), Vector(35.312759, 58.42, 0)), False)  # 2
sketch14.addGeometry(Part.ArcOfCircle(Part.Circle(Vector(41.275, 57.15, 0), Vector(0, 0, 1), 6.096), math.radians(-77.975301), math.radians(167.975301)), False)  # 3
sketch14.addGeometry(Part.LineSegment(Vector(42.545, 51.187759, 0), Vector(42.545, 12.312241, 0)), False)  # 4
sketch14.addGeometry(Part.ArcOfCircle(Part.Circle(Vector(41.275, 6.35, 0), Vector(0, 0, 1), 6.096), math.radians(-167.975301), math.radians(77.975301)), False)  # 5
sketch14.addGeometry(Part.LineSegment(Vector(35.312759, 5.08, 0), Vector(-3.562759, 5.08, 0)), False)  # 6
sketch14.addGeometry(Part.ArcOfCircle(Part.Circle(Vector(-9.525, 6.35, 0), Vector(0, 0, 1), 6.096), math.radians(102.024699), math.radians(347.975301)), False)  # 7
sketch14.addGeometry(Part.Circle(Vector(41.275, 57.15, 0), Vector(0, 0, 1), 3.556), False)  # 8
sketch14.addGeometry(Part.ArcOfCircle(Part.Circle(Vector(41.275, 6.35, 0), Vector(0, 0, 1), 6.096), math.radians(102.024701), math.radians(167.975299)), False)  # 9
sketch14.addGeometry(Part.LineSegment(Vector(40.005, 12.312241, 0), Vector(40.005, 14.9225, 0)), False)  # 10
sketch14.addGeometry(Part.LineSegment(Vector(40.005, 14.9225, 0), Vector(34.29, 14.9225, 0)), False)  # 11
sketch14.addGeometry(Part.LineSegment(Vector(34.29, 14.9225, 0), Vector(34.29, 48.5775, 0)), False)  # 12
sketch14.addGeometry(Part.LineSegment(Vector(34.29, 48.5775, 0), Vector(40.005, 48.5775, 0)), False)  # 13
sketch14.addGeometry(Part.LineSegment(Vector(40.005, 48.5775, 0), Vector(40.005, 51.187759, 0)), False)  # 14
sketch14.addGeometry(Part.ArcOfCircle(Part.Circle(Vector(41.275, 57.15, 0), Vector(0, 0, 1), 6.096), math.radians(-167.975299), math.radians(-102.024701)), False)  # 15
sketch14.addGeometry(Part.LineSegment(Vector(35.312759, 55.88, 0), Vector(-3.562759, 55.88, 0)), False)  # 16
sketch14.addGeometry(Part.ArcOfCircle(Part.Circle(Vector(-9.525, 57.15, 0), Vector(0, 0, 1), 6.096), math.radians(-77.975299), math.radians(-12.024701)), False)  # 17
sketch14.addGeometry(Part.LineSegment(Vector(-8.255, 51.187759, 0), Vector(-8.255, 48.5775, 0)), False)  # 18
sketch14.addGeometry(Part.LineSegment(Vector(-8.255, 48.5775, 0), Vector(-2.54, 48.5775, 0)), False)  # 19
sketch14.addGeometry(Part.LineSegment(Vector(-2.54, 48.5775, 0), Vector(-2.54, 14.9225, 0)), False)  # 20
sketch14.addGeometry(Part.LineSegment(Vector(-2.54, 14.9225, 0), Vector(-8.255, 14.9225, 0)), False)  # 21
sketch14.addGeometry(Part.LineSegment(Vector(-8.255, 14.9225, 0), Vector(-8.255, 12.312241, 0)), False)  # 22
sketch14.addGeometry(Part.ArcOfCircle(Part.Circle(Vector(-9.525, 6.35, 0), Vector(0, 0, 1), 6.096), math.radians(12.024701), math.radians(77.975299)), False)  # 23
sketch14.addGeometry(Part.LineSegment(Vector(-3.562759, 7.62, 0), Vector(35.312759, 7.62, 0)), False)  # 24
sketch14.addGeometry(Part.Circle(Vector(-9.525, 57.15, 0), Vector(0, 0, 1), 3.556), False)  # 25
add_polygon(sketch14, [(36.83, 46.0375), (36.83, 17.4625), (40.005, 17.4625), (40.005, 46.0375)])  # lines 26-29
sketch14.addGeometry(Part.Circle(Vector(41.275, 6.35, 0), Vector(0, 0, 1), 3.556), False)  # 30
add_polygon(sketch14, [(-8.255, 46.0375), (-8.255, 17.4625), (-5.08, 17.4625), (-5.08, 46.0375)])  # lines 31-34
sketch14.addGeometry(Part.Circle(Vector(-9.525, 6.35, 0), Vector(0, 0, 1), 3.556), False)  # 35
sketch14.addConstraint([
    Sketcher.Constraint("Coincident", 0, 2, 1, 2),
    Sketcher.Constraint("Coincident", 1, 1, 2, 1),
    Sketcher.Constraint("Coincident", 2, 2, 3, 2),
    Sketcher.Constraint("Coincident", 3, 1, 4, 1),
    Sketcher.Constraint("Coincident", 4, 2, 5, 2),
    Sketcher.Constraint("Coincident", 5, 1, 6, 1),
    Sketcher.Constraint("Coincident", 6, 2, 7, 2),
    Sketcher.Constraint("Coincident", 7, 1, 0, 1),
    Sketcher.Constraint("Coincident", 9, 1, 10, 1),
    Sketcher.Constraint("Coincident", 10, 2, 11, 1),
    Sketcher.Constraint("Coincident", 11, 2, 12, 1),
    Sketcher.Constraint("Coincident", 12, 2, 13, 1),
    Sketcher.Constraint("Coincident", 13, 2, 14, 1),
    Sketcher.Constraint("Coincident", 14, 2, 15, 2),
    Sketcher.Constraint("Coincident", 15, 1, 16, 1),
    Sketcher.Constraint("Coincident", 16, 2, 17, 2),
    Sketcher.Constraint("Coincident", 17, 1, 18, 1),
    Sketcher.Constraint("Coincident", 18, 2, 19, 1),
    Sketcher.Constraint("Coincident", 19, 2, 20, 1),
    Sketcher.Constraint("Coincident", 20, 2, 21, 1),
    Sketcher.Constraint("Coincident", 21, 2, 22, 1),
    Sketcher.Constraint("Coincident", 22, 2, 23, 2),
    Sketcher.Constraint("Coincident", 23, 1, 24, 1),
    Sketcher.Constraint("Coincident", 24, 2, 9, 2),
    Sketcher.Constraint("Vertical", 0),
    Sketcher.Constraint("Horizontal", 2),
    Sketcher.Constraint("Vertical", 4),
    Sketcher.Constraint("Horizontal", 6),
    Sketcher.Constraint("Vertical", 10),
    Sketcher.Constraint("Horizontal", 11),
    Sketcher.Constraint("Vertical", 12),
    Sketcher.Constraint("Horizontal", 13),
    Sketcher.Constraint("Vertical", 14),
    Sketcher.Constraint("Horizontal", 16),
    Sketcher.Constraint("Vertical", 18),
    Sketcher.Constraint("Horizontal", 19),
    Sketcher.Constraint("Vertical", 20),
    Sketcher.Constraint("Horizontal", 21),
    Sketcher.Constraint("Vertical", 22),
    Sketcher.Constraint("Horizontal", 24),
    Sketcher.Constraint("Vertical", 26),
    Sketcher.Constraint("Horizontal", 27),
    Sketcher.Constraint("Vertical", 28),
    Sketcher.Constraint("Horizontal", 29),
    Sketcher.Constraint("Vertical", 31),
    Sketcher.Constraint("Horizontal", 32),
    Sketcher.Constraint("Vertical", 33),
    Sketcher.Constraint("Horizontal", 34),
    Sketcher.Constraint("Coincident", 8, 3, 3, 3),
    Sketcher.Constraint("Coincident", 9, 3, 5, 3),
    Sketcher.Constraint("Coincident", 15, 3, 3, 3),
    Sketcher.Constraint("Coincident", 17, 3, 1, 3),
    Sketcher.Constraint("Coincident", 23, 3, 7, 3),
    Sketcher.Constraint("Coincident", 25, 3, 1, 3),
    Sketcher.Constraint("Coincident", 30, 3, 5, 3),
    Sketcher.Constraint("Coincident", 35, 3, 7, 3),
    Sketcher.Constraint("Equal", 1, 3),
    Sketcher.Constraint("Equal", 3, 5),
    Sketcher.Constraint("Equal", 5, 7),
    Sketcher.Constraint("Equal", 7, 9),
    Sketcher.Constraint("Equal", 9, 15),
    Sketcher.Constraint("Equal", 15, 17),
    Sketcher.Constraint("Equal", 17, 23),
    Sketcher.Constraint("Equal", 8, 25),
    Sketcher.Constraint("Equal", 25, 30),
    Sketcher.Constraint("Equal", 30, 35),
    Sketcher.Constraint("Horizontal", 1, 3, 3, 3),
    Sketcher.Constraint("Horizontal", 5, 3, 7, 3),
    Sketcher.Constraint("Horizontal", 0, 2, 3, 1),
    Sketcher.Constraint("Horizontal", 4, 2, 7, 1),
    Sketcher.Constraint("Horizontal", 7, 1, 9, 1),
    Sketcher.Constraint("Horizontal", 3, 1, 14, 2),
    Sketcher.Constraint("Horizontal", 14, 2, 17, 1),
    Sketcher.Constraint("Horizontal", 13, 2, 18, 2),
    Sketcher.Constraint("Horizontal", 11, 2, 20, 2),
    Sketcher.Constraint("Horizontal", 9, 1, 22, 2),
    Sketcher.Constraint("Horizontal", 27, 2, 31, 2),
    Sketcher.Constraint("Horizontal", 29, 2, 33, 2),
    Sketcher.Constraint("Vertical", 3, 3, 5, 3),
    Sketcher.Constraint("Vertical", 2, 2, 5, 1),
    Sketcher.Constraint("Vertical", 5, 1, 15, 1),
    Sketcher.Constraint("Vertical", 16, 2, 23, 1),
    Sketcher.Constraint("Vertical", 14, 2, 27, 2),
    Sketcher.Constraint("Vertical", 22, 2, 31, 2),
    Sketcher.Constraint("Equal", 13, 19),
    Sketcher.Constraint("Equal", 29, 32),
    Sketcher.Constraint("Equal", 24, 0),
    Sketcher.Constraint("Equal", 10, 14),
    Sketcher.Constraint("Diameter", 8, Q("0.28 in")),
    Sketcher.Constraint("Radius", 1, Q("0.24 in")),
    Sketcher.Constraint("DistanceX", 1, 3, 3, 3, Q("2 in")),
    Sketcher.Constraint("DistanceY", 5, 3, 3, 3, Q("2 in")),
    Sketcher.Constraint("DistanceY", -1, 1, 1, 1, Q("2.3 in")),
    Sketcher.Constraint("DistanceY", -1, 1, 5, 1, Q("0.2 in")),
    Sketcher.Constraint("DistanceX", 19, 2, -1, 1, Q("0.1 in")),
    Sketcher.Constraint("DistanceX", 32, 2, -1, 1, Q("0.2 in")),
    Sketcher.Constraint("DistanceY", 11, 2, 26, 2, Q("0.1 in")),
    Sketcher.Constraint("DistanceY", 28, 2, 13, 2, Q("0.1 in")),
    Sketcher.Constraint("DistanceX", 11, 2, 11, 1, Q("0.225 in")),
    Sketcher.Constraint("DistanceY", 12, 1, 12, 2, Q("1.325 in")),
])
sketch14.setExpression("Constraints[96]", "Params.sketch14_diameter")
sketch14.setExpression("Constraints[97]", "Params.sketch14_radius")
sketch14.setExpression("Constraints[106]", "Params.sketch14_width")
sketch14.setExpression("Constraints[107]", "Params.sketch14_height")
pad7 = body.newObject("PartDesign::Pad", "Pad006")
pad7.Profile = sketch14
pad7.setExpression("Length", "Params.pad7_length")
pad7.Reversed = True
doc.recompute()

fillet = body.newObject("PartDesign::Fillet", "Fillet")
fillet.Base = (pad7, edges_at(pad7, [
    (34.29, -2.54, -1.27),
    (34.29, -2.54, -1.27),
    (34.29, 66.04, -1.27),
    (34.29, 66.04, -1.27),
    (-2.54, -2.54, -1.27),
    (-2.54, -2.54, -1.27),
    (-2.54, 66.04, -1.27),
    (-2.54, 66.04, -1.27),
]))
fillet.setExpression("Radius", "Params.fillet_radius")
doc.recompute()

fillet2 = body.newObject("PartDesign::Fillet", "Fillet001")
fillet2.Base = (fillet, edges_at(fillet, [
    (36.83, 46.038, -9.207),
    (36.83, 46.038, -9.207),
    (36.83, 17.462, -9.207),
    (36.83, 17.462, -9.207),
    (40.005, 46.038, -9.207),
    (40.005, 46.038, -9.207),
    (40.005, 17.462, -9.207),
    (40.005, 17.462, -9.207),
    (36.83, 31.75, -6.35),
    (38.417, 46.038, -6.35),
    (40.005, 31.75, -6.35),
    (38.417, 17.462, -6.35),
    (-6.668, 46.038, -6.35),
    (-8.255, 31.75, -6.35),
    (-8.255, 46.038, -9.207),
    (-8.255, 46.038, -9.207),
    (-6.668, 46.038, -12.065),
    (-8.255, 31.75, -12.065),
    (-6.668, 17.462, -12.065),
    (-8.255, 17.462, -9.207),
    (-8.255, 17.462, -9.207),
    (-6.668, 17.462, -6.35),
    (-5.08, 31.75, -6.35),
    (-5.08, 46.038, -9.207),
    (-5.08, 46.038, -9.207),
    (-5.08, 31.75, -12.065),
    (-5.08, 17.462, -9.207),
    (-5.08, 17.462, -9.207),
    (36.83, 31.75, -12.065),
    (38.417, 17.462, -12.065),
    (40.005, 31.75, -12.065),
    (38.417, 46.038, -12.065),
]))
fillet2.setExpression("Radius", "Params.fillet2_radius")
doc.recompute()

fillet3 = body.newObject("PartDesign::Fillet", "Fillet002")
fillet3.Base = (fillet2, edges_at(fillet2, [
    (-15.811, 0.064, -8.89),
    (15.875, -2.54, -8.89),
    (15.875, -2.54, -8.89),
    (15.875, -2.54, -8.89),
    (47.561, 0.064, -8.89),
    (50.165, 31.75, -8.89),
    (47.561, 63.436, -8.89),
    (15.875, 66.04, -8.89),
    (15.875, 66.04, -8.89),
    (15.875, 66.04, -8.89),
    (-15.811, 63.436, -8.89),
    (-18.415, 31.75, -8.89),
    (37.148, -2.54, -6.35),
    (37.148, -2.54, -6.35),
    (47.561, 0.064, -6.35),
    (50.165, 31.75, -6.35),
    (47.561, 63.436, -6.35),
    (-5.397, -2.54, -6.35),
    (-5.397, -2.54, -6.35),
    (-15.811, 0.064, -6.35),
    (-18.415, 31.75, -6.35),
    (-15.811, 63.436, -6.35),
    (-5.397, 66.04, -6.35),
    (-5.397, 66.04, -6.35),
    (37.148, 66.04, -6.35),
    (37.148, 66.04, -6.35),
    (37.719, 6.35, -6.35),
    (37.719, 57.15, -6.35),
    (-13.081, 6.35, -6.35),
    (-13.081, 57.15, -6.35),
]))
fillet3.setExpression("Radius", "Params.fillet3_radius")

doc.recompute()
